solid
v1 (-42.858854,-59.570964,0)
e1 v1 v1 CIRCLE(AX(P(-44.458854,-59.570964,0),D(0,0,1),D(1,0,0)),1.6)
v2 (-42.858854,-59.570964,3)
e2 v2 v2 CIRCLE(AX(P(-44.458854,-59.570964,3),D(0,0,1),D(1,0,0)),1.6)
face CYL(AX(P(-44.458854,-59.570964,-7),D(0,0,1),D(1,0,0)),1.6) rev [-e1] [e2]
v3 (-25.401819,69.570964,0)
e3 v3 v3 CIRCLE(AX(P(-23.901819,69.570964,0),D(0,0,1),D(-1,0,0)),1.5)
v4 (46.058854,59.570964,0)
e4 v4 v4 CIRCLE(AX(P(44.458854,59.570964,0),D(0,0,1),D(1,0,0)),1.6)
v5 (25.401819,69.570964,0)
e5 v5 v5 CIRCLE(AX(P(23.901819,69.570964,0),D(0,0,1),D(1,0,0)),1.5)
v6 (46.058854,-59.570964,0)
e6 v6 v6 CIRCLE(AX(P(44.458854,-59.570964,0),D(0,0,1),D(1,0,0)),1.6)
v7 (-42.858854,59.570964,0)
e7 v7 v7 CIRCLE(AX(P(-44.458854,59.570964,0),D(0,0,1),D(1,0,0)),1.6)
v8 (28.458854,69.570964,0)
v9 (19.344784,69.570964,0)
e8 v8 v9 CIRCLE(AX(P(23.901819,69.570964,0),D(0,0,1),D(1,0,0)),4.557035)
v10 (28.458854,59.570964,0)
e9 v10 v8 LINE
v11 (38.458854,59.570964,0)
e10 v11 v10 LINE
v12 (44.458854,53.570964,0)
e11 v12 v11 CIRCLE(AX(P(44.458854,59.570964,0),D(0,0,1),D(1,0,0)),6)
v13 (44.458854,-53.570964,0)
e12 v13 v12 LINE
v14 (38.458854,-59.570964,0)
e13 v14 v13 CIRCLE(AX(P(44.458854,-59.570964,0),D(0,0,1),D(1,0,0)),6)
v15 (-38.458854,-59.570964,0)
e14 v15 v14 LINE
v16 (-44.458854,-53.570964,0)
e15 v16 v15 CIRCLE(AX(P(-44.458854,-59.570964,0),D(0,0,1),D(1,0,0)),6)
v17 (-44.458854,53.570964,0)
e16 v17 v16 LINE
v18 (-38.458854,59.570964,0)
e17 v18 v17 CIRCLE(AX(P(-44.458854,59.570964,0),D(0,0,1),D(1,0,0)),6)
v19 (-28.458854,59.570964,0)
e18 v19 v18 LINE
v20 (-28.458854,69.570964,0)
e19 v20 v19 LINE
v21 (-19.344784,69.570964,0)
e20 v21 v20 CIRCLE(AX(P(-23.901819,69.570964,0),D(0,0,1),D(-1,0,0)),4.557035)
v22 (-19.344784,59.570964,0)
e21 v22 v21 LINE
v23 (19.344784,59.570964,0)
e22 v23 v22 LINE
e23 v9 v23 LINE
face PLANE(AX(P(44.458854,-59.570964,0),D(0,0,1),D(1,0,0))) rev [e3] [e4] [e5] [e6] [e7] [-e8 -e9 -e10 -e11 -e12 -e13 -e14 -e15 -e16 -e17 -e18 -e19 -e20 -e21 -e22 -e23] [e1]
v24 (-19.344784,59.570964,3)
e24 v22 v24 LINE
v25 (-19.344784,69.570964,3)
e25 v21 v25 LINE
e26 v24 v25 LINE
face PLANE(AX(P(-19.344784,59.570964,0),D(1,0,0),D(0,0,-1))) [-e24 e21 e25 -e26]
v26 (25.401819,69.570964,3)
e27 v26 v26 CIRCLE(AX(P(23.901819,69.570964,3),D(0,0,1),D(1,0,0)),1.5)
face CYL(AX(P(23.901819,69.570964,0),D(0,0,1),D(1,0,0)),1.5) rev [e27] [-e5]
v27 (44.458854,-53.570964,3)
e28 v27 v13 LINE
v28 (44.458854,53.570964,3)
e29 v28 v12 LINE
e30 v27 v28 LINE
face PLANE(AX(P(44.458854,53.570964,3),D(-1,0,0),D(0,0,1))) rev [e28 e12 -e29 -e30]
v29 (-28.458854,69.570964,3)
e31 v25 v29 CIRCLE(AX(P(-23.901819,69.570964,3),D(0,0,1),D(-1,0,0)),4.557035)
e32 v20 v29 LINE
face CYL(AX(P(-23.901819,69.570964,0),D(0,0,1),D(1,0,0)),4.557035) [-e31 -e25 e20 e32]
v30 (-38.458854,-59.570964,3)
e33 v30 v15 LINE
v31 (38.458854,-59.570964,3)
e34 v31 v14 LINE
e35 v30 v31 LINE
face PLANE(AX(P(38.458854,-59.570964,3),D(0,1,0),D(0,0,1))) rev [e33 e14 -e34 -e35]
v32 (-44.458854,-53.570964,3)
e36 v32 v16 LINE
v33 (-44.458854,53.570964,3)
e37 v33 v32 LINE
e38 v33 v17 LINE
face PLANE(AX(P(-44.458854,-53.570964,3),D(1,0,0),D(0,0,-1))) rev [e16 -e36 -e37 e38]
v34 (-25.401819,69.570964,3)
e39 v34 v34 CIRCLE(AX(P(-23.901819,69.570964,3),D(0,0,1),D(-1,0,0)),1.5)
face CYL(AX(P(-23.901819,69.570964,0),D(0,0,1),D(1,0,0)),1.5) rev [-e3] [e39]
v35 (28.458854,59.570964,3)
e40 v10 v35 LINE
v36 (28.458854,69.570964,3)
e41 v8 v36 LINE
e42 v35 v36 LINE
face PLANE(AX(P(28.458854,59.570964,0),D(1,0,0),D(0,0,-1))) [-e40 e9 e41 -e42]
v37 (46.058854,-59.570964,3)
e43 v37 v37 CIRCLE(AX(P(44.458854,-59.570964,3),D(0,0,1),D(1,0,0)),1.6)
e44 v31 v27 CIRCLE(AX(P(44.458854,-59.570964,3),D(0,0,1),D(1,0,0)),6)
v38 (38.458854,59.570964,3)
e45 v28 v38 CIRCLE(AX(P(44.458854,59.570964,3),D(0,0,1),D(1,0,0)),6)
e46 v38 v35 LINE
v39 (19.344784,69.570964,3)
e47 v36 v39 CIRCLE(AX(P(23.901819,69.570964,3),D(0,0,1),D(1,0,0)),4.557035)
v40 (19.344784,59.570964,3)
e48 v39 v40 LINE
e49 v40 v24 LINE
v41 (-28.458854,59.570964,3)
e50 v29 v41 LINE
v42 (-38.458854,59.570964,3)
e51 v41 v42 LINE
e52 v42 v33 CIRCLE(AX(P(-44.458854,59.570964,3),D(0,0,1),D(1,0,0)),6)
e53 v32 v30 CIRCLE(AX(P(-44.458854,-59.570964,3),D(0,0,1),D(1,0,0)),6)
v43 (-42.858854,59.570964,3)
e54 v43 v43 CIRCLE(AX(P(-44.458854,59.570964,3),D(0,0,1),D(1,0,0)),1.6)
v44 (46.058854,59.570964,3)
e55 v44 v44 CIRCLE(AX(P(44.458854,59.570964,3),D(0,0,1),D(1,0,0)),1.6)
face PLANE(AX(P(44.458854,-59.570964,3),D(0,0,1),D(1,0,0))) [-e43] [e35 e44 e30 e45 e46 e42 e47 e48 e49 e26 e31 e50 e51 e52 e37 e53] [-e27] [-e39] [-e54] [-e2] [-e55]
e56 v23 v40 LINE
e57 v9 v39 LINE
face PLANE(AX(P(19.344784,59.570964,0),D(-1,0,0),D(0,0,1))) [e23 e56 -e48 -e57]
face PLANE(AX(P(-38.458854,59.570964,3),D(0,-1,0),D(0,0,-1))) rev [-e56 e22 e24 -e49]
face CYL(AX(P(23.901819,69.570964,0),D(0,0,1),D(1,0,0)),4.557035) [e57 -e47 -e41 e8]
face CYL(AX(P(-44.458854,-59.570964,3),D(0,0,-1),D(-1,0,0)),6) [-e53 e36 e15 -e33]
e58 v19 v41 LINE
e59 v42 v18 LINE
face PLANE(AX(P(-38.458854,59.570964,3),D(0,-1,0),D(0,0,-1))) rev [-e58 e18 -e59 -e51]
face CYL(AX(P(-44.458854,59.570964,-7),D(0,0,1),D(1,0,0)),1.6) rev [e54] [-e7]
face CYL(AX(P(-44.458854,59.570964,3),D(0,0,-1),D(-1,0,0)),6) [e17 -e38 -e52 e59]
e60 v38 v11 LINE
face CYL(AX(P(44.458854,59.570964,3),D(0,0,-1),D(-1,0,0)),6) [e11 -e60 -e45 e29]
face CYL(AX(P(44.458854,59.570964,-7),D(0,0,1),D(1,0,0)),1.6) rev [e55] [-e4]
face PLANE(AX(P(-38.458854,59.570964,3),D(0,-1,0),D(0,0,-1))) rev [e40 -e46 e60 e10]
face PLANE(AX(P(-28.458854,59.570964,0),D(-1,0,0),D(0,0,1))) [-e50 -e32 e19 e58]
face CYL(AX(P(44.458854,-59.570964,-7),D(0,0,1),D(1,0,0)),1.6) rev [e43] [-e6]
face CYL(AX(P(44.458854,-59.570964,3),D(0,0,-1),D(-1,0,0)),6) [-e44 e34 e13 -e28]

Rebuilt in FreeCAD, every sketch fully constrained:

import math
import FreeCAD as App
import Part
import Sketcher

V = App.Vector
Q = App.Units.Quantity

doc = App.newDocument("Part")
body = doc.addObject("PartDesign::Body", "Body")

# Sketch on XY plane
sketch1 = body.newObject("Sketcher::SketchObject", "Sketch")
sketch1.AttachmentSupport = (doc.getObject("XY_Plane"), [""])
sketch1.MapMode = "FlatFace"
sketch1.addGeometry([
    Part.LineSegment(V(-38, -60, 0), V(38, -60, 0)),  # 0
    Part.ArcOfCircle(Part.Circle(V(44, -60, 0), V(0, 0, 1), 6), math.radians(180), math.radians(450)),  # 1
    Part.LineSegment(V(44, -54, 0), V(44, 54, 0)),  # 2
    Part.ArcOfCircle(Part.Circle(V(44, 60, 0), V(0, 0, 1), 6), math.radians(-90), math.radians(180)),  # 3
    Part.LineSegment(V(38, 60, 0), V(-38, 60, 0)),  # 4
    Part.ArcOfCircle(Part.Circle(V(-44, 60, 0), V(0, 0, 1), 6), math.radians(0), math.radians(270)),  # 5
    Part.LineSegment(V(-44, 54, 0), V(-44, -54, 0)),  # 6
    Part.ArcOfCircle(Part.Circle(V(-44, -60, 0), V(0, 0, 1), 6), math.radians(90), math.radians(360)),  # 7
], False)
sketch1.addConstraint([
    Sketcher.Constraint("Coincident", 0, 2, 1, 1),
    Sketcher.Constraint("Coincident", 1, 2, 2, 1),
    Sketcher.Constraint("Coincident", 2, 2, 3, 1),
    Sketcher.Constraint("Coincident", 3, 2, 4, 1),
    Sketcher.Constraint("Coincident", 4, 2, 5, 1),
    Sketcher.Constraint("Coincident", 5, 2, 6, 1),
    Sketcher.Constraint("Coincident", 6, 2, 7, 1),
    Sketcher.Constraint("Coincident", 7, 2, 0, 1),
    Sketcher.Constraint("Horizontal", 0),
    Sketcher.Constraint("Vertical", 2),
    Sketcher.Constraint("Horizontal", 4),
    Sketcher.Constraint("Vertical", 6),
    Sketcher.Constraint("Equal", 1, 3),
    Sketcher.Constraint("Equal", 3, 5),
    Sketcher.Constraint("Equal", 5, 7),
    Sketcher.Constraint("Symmetric", 1, 3, 5, 3, -1, 1),
    Sketcher.Constraint("Symmetric", 3, 3, 7, 3, -1, 1),
    Sketcher.Constraint("Symmetric", 3, 3, 5, 3, -2),
    Sketcher.Constraint("Horizontal", 7, 3, 0, 2),
    Sketcher.Constraint("Horizontal", 5, 3, 3, 2),
    Sketcher.Constraint("Vertical", 3, 3, 1, 2),
    Sketcher.Constraint("Vertical", 7, 3, 5, 2),
    Sketcher.Constraint("Radius", 1, Q("6 mm")),
    Sketcher.Constraint("DistanceY", 2, 1, 2, 2, Q("107.141928 mm")),
    Sketcher.Constraint("DistanceX", 0, 1, 0, 2, Q("76.917707 mm")),
])
pad1 = body.newObject("PartDesign::Pad", "Pad")
pad1.Profile = sketch1
pad1.Length = 3

# Sketch on XY plane
sketch2 = body.newObject("Sketcher::SketchObject", "Sketch001")
sketch2.AttachmentSupport = (doc.getObject("XY_Plane"), [""])
sketch2.MapMode = "FlatFace"
sketch2.AttachmentOffset = App.Placement(V(0, 0, 3), App.Rotation())
sketch2.addGeometry([
    Part.Circle(V(-44.5, 59.6, 0), V(0, 0, 1), 1.6),
    Part.Circle(V(44.5, 59.6, 0), V(0, 0, 1), 1.6),
    Part.Circle(V(44.5, -59.6, 0), V(0, 0, 1), 1.6),
    Part.Circle(V(-44.5, -59.6, 0), V(0, 0, 1), 1.6),
], False)
sketch2.addConstraint([
    Sketcher.Constraint("Equal", 0, 1),
    Sketcher.Constraint("Equal", 1, 2),
    Sketcher.Constraint("Equal", 2, 3),
    Sketcher.Constraint("Symmetric", 0, 3, 2, 3, -1, 1),
    Sketcher.Constraint("Symmetric", 1, 3, 3, 3, -1, 1),
    Sketcher.Constraint("Symmetric", 0, 3, 1, 3, -2),
    Sketcher.Constraint("Diameter", 0, Q("3.2 mm")),
    Sketcher.Constraint("DistanceY", 2, 3, 1, 3, Q("119.141928 mm")),
    Sketcher.Constraint("DistanceX", 0, 3, -1, 1, Q("44.458854 mm")),
])
pocket1 = body.newObject("PartDesign::Pocket", "Pocket")
pocket1.Profile = sketch2
pocket1.Length = 10

# Sketch on XY plane
sketch3 = body.newObject("Sketcher::SketchObject", "Sketch002")
sketch3.AttachmentSupport = (doc.getObject("XY_Plane"), [""])
sketch3.MapMode = "FlatFace"
sketch3.AttachmentOffset = App.Placement(V(0, 0, 3), App.Rotation())
sketch3.addGeometry([
    Part.LineSegment(V(19.3, 59.6, 0), V(28.5, 59.6, 0)),  # 0
    Part.LineSegment(V(28.5, 59.6, 0), V(28.5, 69.6, 0)),  # 1
    Part.ArcOfCircle(Part.Circle(V(23.9, 69.6, 0), V(0, 0, 1), 4.6), math.radians(0), math.radians(180)),  # 2
    Part.LineSegment(V(19.3, 69.6, 0), V(19.3, 59.6, 0)),  # 3
    Part.Circle(V(23.9, 69.6, 0), V(0, 0, 1), 1.5),  # 4
    Part.LineSegment(V(-28.5, 59.6, 0), V(-19.3, 59.6, 0)),  # 5
    Part.LineSegment(V(-19.3, 59.6, 0), V(-19.3, 69.6, 0)),  # 6
    Part.ArcOfCircle(Part.Circle(V(-23.9, 69.6, 0), V(0, 0, 1), 4.6), math.radians(0), math.radians(180)),  # 7
    Part.LineSegment(V(-28.5, 69.6, 0), V(-28.5, 59.6, 0)),  # 8
    Part.Circle(V(-23.9, 69.6, 0), V(0, 0, 1), 1.5),  # 9
], False)
sketch3.addConstraint([
    Sketcher.Constraint("Coincident", 0, 2, 1, 1),
    Sketcher.Constraint("Tangent", 1, 2, 2, 1),
    Sketcher.Constraint("Tangent", 2, 2, 3, 1),
    Sketcher.Constraint("Coincident", 3, 2, 0, 1),
    Sketcher.Constraint("Coincident", 5, 2, 6, 1),
    Sketcher.Constraint("Tangent", 6, 2, 7, 1),
    Sketcher.Constraint("Tangent", 7, 2, 8, 1),
    Sketcher.Constraint("Coincident", 8, 2, 5, 1),
    Sketcher.Constraint("Horizontal", 0),
    Sketcher.Constraint("Vertical", 1),
    Sketcher.Constraint("Vertical", 3),
    Sketcher.Constraint("Horizontal", 5),
    Sketcher.Constraint("Vertical", 6),
    Sketcher.Constraint("Vertical", 8),
    Sketcher.Constraint("Coincident", 4, 3, 2, 3),
    Sketcher.Constraint("Coincident", 9, 3, 7, 3),
    Sketcher.Constraint("Equal", 2, 7),
    Sketcher.Constraint("Equal", 4, 9),
    Sketcher.Constraint("Symmetric", 2, 3, 7, 3, -2),
    Sketcher.Constraint("Horizontal", 3, 2, 5, 2),
    Sketcher.Constraint("Diameter", 4, Q("3 mm")),
    Sketcher.Constraint("DistanceY", 1, 1, 1, 2, Q("10 mm")),
    Sketcher.Constraint("Radius", 2, Q("4.557035 mm")),
    Sketcher.Constraint("DistanceX", -1, 1, 2, 3, Q("23.901819 mm")),
    Sketcher.Constraint("DistanceY", -1, 1, 2, 3, Q("69.570964 mm")),
])
pad2 = body.newObject("PartDesign::Pad", "Pad001")
pad2.Profile = sketch3
pad2.Length = 3
pad2.Reversed = True

doc.recompute()
